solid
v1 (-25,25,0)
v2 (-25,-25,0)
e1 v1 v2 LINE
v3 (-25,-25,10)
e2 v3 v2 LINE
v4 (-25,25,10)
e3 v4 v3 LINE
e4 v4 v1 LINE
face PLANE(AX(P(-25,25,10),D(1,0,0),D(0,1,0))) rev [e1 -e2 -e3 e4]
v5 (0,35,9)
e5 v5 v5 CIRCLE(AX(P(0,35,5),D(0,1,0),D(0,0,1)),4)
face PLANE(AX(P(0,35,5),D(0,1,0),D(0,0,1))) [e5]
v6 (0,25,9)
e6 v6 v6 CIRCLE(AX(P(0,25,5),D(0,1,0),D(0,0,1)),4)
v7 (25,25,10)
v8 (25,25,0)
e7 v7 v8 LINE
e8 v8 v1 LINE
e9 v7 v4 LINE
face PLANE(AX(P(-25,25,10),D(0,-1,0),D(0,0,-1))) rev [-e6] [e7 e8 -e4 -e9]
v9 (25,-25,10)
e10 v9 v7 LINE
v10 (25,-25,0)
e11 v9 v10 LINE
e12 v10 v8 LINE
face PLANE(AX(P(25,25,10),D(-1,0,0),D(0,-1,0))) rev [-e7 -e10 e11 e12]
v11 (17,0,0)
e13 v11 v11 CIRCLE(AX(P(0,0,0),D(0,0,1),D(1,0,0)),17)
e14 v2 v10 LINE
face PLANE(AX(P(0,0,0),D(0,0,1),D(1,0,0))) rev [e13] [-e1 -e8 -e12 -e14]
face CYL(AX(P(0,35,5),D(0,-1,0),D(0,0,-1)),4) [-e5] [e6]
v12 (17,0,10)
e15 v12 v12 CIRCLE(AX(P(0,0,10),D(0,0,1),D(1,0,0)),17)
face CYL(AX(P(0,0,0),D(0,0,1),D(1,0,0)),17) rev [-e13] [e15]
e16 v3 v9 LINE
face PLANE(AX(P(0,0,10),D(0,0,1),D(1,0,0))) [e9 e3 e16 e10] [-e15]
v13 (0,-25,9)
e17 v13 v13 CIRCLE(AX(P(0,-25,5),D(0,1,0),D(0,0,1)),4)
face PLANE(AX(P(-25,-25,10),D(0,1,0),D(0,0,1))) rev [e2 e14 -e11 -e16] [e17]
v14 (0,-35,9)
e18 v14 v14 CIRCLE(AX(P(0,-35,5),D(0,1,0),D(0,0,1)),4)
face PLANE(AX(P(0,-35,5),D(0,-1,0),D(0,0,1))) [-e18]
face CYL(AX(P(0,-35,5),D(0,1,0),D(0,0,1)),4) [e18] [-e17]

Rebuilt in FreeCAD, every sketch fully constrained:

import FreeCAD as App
import Part
import Sketcher
from FreeCAD import Vector
Q = App.Units.Quantity


def add_polygon(sketch, points):
    """Adds a closed chain of lines whose ends are joined by coincident constraints."""
    first, n = sketch.GeometryCount, len(points)
    for a, b in zip(points, points[1:] + points[:1]):
        sketch.addGeometry(Part.LineSegment(App.Vector(*a, 0), App.Vector(*b, 0)), False)
    for i in range(n):
        sketch.addConstraint(Sketcher.Constraint("Coincident", first + i, 2, first + (i + 1) % n, 1))

doc = App.newDocument("Part")
body = doc.addObject("PartDesign::Body", "Body")

sketch1 = doc.addObject("Sketcher::SketchObject", "Sketch")
body.addObject(sketch1)
sketch1.AttachmentSupport = (doc.XY_Plane, [""])
sketch1.MapMode = "FlatFace"
add_polygon(sketch1, [(-25, 25), (-25, -25), (25, -25), (25, 25)])
sketch1.addConstraint([
    Sketcher.Constraint("Vertical", 0),
    Sketcher.Constraint("Horizontal", 1),
    Sketcher.Constraint("Vertical", 2),
    Sketcher.Constraint("Horizontal", 3),
    Sketcher.Constraint("Symmetric", 0, 2, 2, 2, -1, 1),
    Sketcher.Constraint("Equal", 3, 0),
    Sketcher.Constraint("DistanceX", 1, 1, 1, 2, Q("50 mm")),
])
pad1 = doc.addObject("PartDesign::Pad", "Pad")
body.addObject(pad1)
pad1.Profile = sketch1
pad1.Length = 10

sketch2 = doc.addObject("Sketcher::SketchObject", "Sketch001")
body.addObject(sketch2)
sketch2.AttachmentSupport = (doc.XY_Plane, [""])
sketch2.MapMode = "FlatFace"
sketch2.AttachmentOffset = App.Placement(Vector(0, 0, 10), App.Rotation())
sketch2.addGeometry(Part.Circle(Vector(0, 0, 0), Vector(0, 0, 1), 17), False)
sketch2.addConstraint([
    Sketcher.Constraint("Coincident", 0, 3, -1, 1),
    Sketcher.Constraint("Diameter", 0, Q("34 mm")),
])
pocket1 = doc.addObject("PartDesign::Pocket", "Pocket")
body.addObject(pocket1)
pocket1.Profile = sketch2
pocket1.Length = 10

sketch3 = doc.addObject("Sketcher::SketchObject", "Sketch002")
body.addObject(sketch3)
sketch3.AttachmentSupport = (doc.XZ_Plane, [""])
sketch3.MapMode = "FlatFace"
sketch3.AttachmentOffset = App.Placement(Vector(0, 0, -25), App.Rotation())
sketch3.addGeometry(Part.Circle(Vector(0, 5, 0), Vector(0, 0, 1), 4), False)
sketch3.addConstraint([
    Sketcher.Constraint("PointOnObject", 0, 3, -2),
    Sketcher.Constraint("Diameter", 0, Q("8 mm")),
    Sketcher.Constraint("DistanceY", -1, 1, 0, 3, Q("5 mm")),
])
pad2 = doc.addObject("PartDesign::Pad", "Pad001")
body.addObject(pad2)
pad2.Profile = sketch3
pad2.Length = 10
pad2.Reversed = True
doc.recompute()

mirrored = doc.addObject("PartDesign::Mirrored", "Mirrored")
body.addObject(mirrored)
mirrored.Originals = [pad2]
mirrored.MirrorPlane = (doc.XZ_Plane, [""])
body.Tip = mirrored

doc.recompute()
